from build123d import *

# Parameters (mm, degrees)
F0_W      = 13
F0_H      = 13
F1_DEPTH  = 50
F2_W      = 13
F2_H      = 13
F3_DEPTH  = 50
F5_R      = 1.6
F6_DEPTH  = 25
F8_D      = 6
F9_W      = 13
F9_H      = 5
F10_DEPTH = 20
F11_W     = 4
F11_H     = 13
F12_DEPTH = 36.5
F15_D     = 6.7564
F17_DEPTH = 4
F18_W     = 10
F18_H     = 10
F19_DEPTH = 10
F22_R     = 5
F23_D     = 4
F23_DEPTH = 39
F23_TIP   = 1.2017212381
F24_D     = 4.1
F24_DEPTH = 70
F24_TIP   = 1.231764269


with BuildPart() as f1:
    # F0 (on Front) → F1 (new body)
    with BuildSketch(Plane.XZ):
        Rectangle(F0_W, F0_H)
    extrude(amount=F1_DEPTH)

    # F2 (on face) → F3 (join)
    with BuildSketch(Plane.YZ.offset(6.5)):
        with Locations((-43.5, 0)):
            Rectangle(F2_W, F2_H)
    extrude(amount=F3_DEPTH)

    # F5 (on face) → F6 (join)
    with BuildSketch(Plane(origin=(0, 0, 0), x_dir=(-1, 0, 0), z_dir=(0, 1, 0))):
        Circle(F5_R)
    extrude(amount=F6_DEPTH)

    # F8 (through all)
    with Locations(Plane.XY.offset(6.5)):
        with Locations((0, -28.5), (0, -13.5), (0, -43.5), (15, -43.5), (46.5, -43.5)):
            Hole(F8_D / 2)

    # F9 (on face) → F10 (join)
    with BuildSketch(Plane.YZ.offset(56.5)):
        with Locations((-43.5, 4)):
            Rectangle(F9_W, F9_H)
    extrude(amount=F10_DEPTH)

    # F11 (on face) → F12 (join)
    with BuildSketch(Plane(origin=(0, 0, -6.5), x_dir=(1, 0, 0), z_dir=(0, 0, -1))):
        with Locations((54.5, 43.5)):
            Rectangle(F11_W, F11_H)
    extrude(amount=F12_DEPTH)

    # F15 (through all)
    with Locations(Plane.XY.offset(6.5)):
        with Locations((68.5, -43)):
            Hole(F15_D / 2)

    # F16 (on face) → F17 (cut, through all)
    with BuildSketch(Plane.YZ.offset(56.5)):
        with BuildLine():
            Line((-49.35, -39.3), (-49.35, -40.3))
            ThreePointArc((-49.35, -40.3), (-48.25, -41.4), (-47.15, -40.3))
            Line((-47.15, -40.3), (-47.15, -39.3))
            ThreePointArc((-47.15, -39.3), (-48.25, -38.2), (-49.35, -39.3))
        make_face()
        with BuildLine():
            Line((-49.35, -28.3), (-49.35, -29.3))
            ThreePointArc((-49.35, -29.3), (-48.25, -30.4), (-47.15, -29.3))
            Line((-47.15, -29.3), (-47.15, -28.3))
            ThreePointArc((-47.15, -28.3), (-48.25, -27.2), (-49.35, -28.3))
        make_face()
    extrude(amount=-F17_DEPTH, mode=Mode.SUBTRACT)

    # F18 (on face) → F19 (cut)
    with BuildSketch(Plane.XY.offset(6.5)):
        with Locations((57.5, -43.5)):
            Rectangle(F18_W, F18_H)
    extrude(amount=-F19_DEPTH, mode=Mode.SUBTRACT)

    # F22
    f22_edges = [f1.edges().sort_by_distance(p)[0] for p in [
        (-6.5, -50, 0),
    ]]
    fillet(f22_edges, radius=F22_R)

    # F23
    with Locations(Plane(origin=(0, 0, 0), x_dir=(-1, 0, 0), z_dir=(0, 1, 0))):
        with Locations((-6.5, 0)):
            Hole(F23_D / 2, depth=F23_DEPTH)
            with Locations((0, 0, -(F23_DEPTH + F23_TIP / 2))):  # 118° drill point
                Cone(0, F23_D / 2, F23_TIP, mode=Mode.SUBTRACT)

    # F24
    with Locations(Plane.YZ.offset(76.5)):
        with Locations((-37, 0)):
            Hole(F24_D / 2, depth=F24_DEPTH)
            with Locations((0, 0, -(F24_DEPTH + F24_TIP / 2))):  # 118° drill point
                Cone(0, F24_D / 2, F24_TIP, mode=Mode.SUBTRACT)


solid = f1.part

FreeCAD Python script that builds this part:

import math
import FreeCAD as App
import Part
import Sketcher
Q = App.Units.Quantity


def edges_at(feature, points):
    """Names of the edges that pass closest to the given points."""
    edges = feature.Shape.Edges
    near = lambda p: min(range(len(edges)), key=lambda i: edges[i].distToShape(Part.Vertex(*p))[0])
    return sorted({f"Edge{near(p) + 1}" for p in points})


def add_polygon(sketch, points):
    """Adds a closed chain of lines whose ends are joined by coincident constraints."""
    first, n = sketch.GeometryCount, len(points)
    for a, b in zip(points, points[1:] + points[:1]):
        sketch.addGeometry(Part.LineSegment(App.Vector(*a, 0), App.Vector(*b, 0)), False)
    for i in range(n):
        sketch.addConstraint(Sketcher.Constraint("Coincident", first + i, 2, first + (i + 1) % n, 1))

doc = App.newDocument("Part")
body = doc.addObject("PartDesign::Body", "Body")

# Sketch on XZ plane
sketch1 = body.newObject("Sketcher::SketchObject", "Sketch")
sketch1.AttachmentSupport = (doc.getObject("XZ_Plane"), [""])
sketch1.MapMode = "FlatFace"
add_polygon(sketch1, [(-6, 6), (-6, -6), (6, -6), (6, 6)])  # lines 0-3
sketch1.addConstraint(Sketcher.Constraint("Vertical", 0))
sketch1.addConstraint(Sketcher.Constraint("Horizontal", 1))
sketch1.addConstraint(Sketcher.Constraint("Vertical", 2))
sketch1.addConstraint(Sketcher.Constraint("Horizontal", 3))
sketch1.addConstraint(Sketcher.Constraint("Symmetric", 0, 2, 2, 2, -1, 1))
sketch1.addConstraint(Sketcher.Constraint("Equal", 3, 0))
sketch1.addConstraint(Sketcher.Constraint("DistanceX", 1, 1, 1, 2, Q("13 mm")))
pad1 = body.newObject("PartDesign::Pad", "Pad")
pad1.Profile = sketch1
pad1.Length = 50

# Sketch on YZ plane
sketch2 = body.newObject("Sketcher::SketchObject", "Sketch001")
sketch2.AttachmentSupport = (doc.getObject("YZ_Plane"), [""])
sketch2.MapMode = "FlatFace"
sketch2.AttachmentOffset = App.Placement(App.Vector(0, 0, 6.5), App.Rotation())
add_polygon(sketch2, [(-50, 6), (-50, -6), (-37, -6), (-37, 6)])  # lines 0-3
sketch2.addConstraint(Sketcher.Constraint("Vertical", 0))
sketch2.addConstraint(Sketcher.Constraint("Horizontal", 1))
sketch2.addConstraint(Sketcher.Constraint("Vertical", 2))
sketch2.addConstraint(Sketcher.Constraint("Horizontal", 3))
sketch2.addConstraint(Sketcher.Constraint("Equal", 3, 0))
sketch2.addConstraint(Sketcher.Constraint("DistanceX", 1, 1, 1, 2, Q("13 mm")))
sketch2.addConstraint(Sketcher.Constraint("DistanceX", 0, 2, -1, 1, Q("50 mm")))
sketch2.addConstraint(Sketcher.Constraint("DistanceY", 0, 2, -1, 1, Q("6.5 mm")))
pad2 = body.newObject("PartDesign::Pad", "Pad001")
pad2.Profile = sketch2
pad2.Length = 50

# Sketch on XZ plane
sketch3 = body.newObject("Sketcher::SketchObject", "Sketch002")
sketch3.AttachmentSupport = (doc.getObject("XZ_Plane"), [""])
sketch3.MapMode = "FlatFace"
sketch3.addGeometry(Part.Circle(App.Vector(0, 0, 0), App.Vector(0, 0, 1), 1.6), False)
sketch3.addConstraint(Sketcher.Constraint("Coincident", 0, 3, -1, 1))
sketch3.addConstraint(Sketcher.Constraint("Diameter", 0, Q("3.2 mm")))
pad3 = body.newObject("PartDesign::Pad", "Pad002")
pad3.Profile = sketch3
pad3.Length = 25
pad3.Reversed = True

# Sketch on XY plane
sketch4 = body.newObject("Sketcher::SketchObject", "Sketch003")
sketch4.AttachmentSupport = (doc.getObject("XY_Plane"), [""])
sketch4.MapMode = "FlatFace"
sketch4.AttachmentOffset = App.Placement(App.Vector(0, 0, 6.5), App.Rotation())
sketch4.addGeometry(Part.Circle(App.Vector(0, -28.5, 0), App.Vector(0, 0, 1), 3), False)
sketch4.addGeometry(Part.Circle(App.Vector(0, -13.5, 0), App.Vector(0, 0, 1), 3), False)
sketch4.addGeometry(Part.Circle(App.Vector(0, -43.5, 0), App.Vector(0, 0, 1), 3), False)
sketch4.addGeometry(Part.Circle(App.Vector(15, -43.5, 0), App.Vector(0, 0, 1), 3), False)
sketch4.addGeometry(Part.Circle(App.Vector(46.5, -43.5, 0), App.Vector(0, 0, 1), 3), False)
sketch4.addConstraint(Sketcher.Constraint("Equal", 0, 1))
sketch4.addConstraint(Sketcher.Constraint("Equal", 1, 2))
sketch4.addConstraint(Sketcher.Constraint("Equal", 2, 3))
sketch4.addConstraint(Sketcher.Constraint("Equal", 3, 4))
sketch4.addConstraint(Sketcher.Constraint("PointOnObject", 0, 3, -2))
sketch4.addConstraint(Sketcher.Constraint("PointOnObject", 1, 3, -2))
sketch4.addConstraint(Sketcher.Constraint("PointOnObject", 2, 3, -2))
sketch4.addConstraint(Sketcher.Constraint("Horizontal", 2, 3, 3, 3))
sketch4.addConstraint(Sketcher.Constraint("Horizontal", 3, 3, 4, 3))
sketch4.addConstraint(Sketcher.Constraint("Diameter", 0, Q("6 mm")))
sketch4.addConstraint(Sketcher.Constraint("DistanceX", -1, 1, 3, 3, Q("15 mm")))
sketch4.addConstraint(Sketcher.Constraint("DistanceY", 0, 3, 1, 3, Q("15 mm")))
sketch4.addConstraint(Sketcher.Constraint("DistanceY", 2, 3, 0, 3, Q("15 mm")))
sketch4.addConstraint(Sketcher.Constraint("DistanceY", 0, 3, -1, 1, Q("28.5 mm")))
sketch4.addConstraint(Sketcher.Constraint("DistanceX", -1, 1, 4, 3, Q("46.5 mm")))
doc.recompute()
hole = body.newObject("PartDesign::Hole", "Hole")
hole.Profile = sketch4
hole.ThreadType = "None"
hole.Diameter = 6
hole.DepthType = "ThroughAll"

# Sketch on YZ plane
sketch5 = body.newObject("Sketcher::SketchObject", "Sketch004")
sketch5.AttachmentSupport = (doc.getObject("YZ_Plane"), [""])
sketch5.MapMode = "FlatFace"
sketch5.AttachmentOffset = App.Placement(App.Vector(0, 0, 56.5), App.Rotation())
add_polygon(sketch5, [(-50, 6), (-50, 2), (-37, 2), (-37, 6)])  # lines 0-3
sketch5.addConstraint(Sketcher.Constraint("Vertical", 0))
sketch5.addConstraint(Sketcher.Constraint("Horizontal", 1))
sketch5.addConstraint(Sketcher.Constraint("Vertical", 2))
sketch5.addConstraint(Sketcher.Constraint("Horizontal", 3))
sketch5.addConstraint(Sketcher.Constraint("DistanceX", 1, 1, 1, 2, Q("13 mm")))
sketch5.addConstraint(Sketcher.Constraint("DistanceY", 0, 2, 0, 1, Q("5 mm")))
sketch5.addConstraint(Sketcher.Constraint("DistanceX", 0, 2, -1, 1, Q("50 mm")))
sketch5.addConstraint(Sketcher.Constraint("DistanceY", -1, 1, 0, 2, Q("1.5 mm")))
pad4 = body.newObject("PartDesign::Pad", "Pad003")
pad4.Profile = sketch5
pad4.Length = 20

# Sketch on XY plane
sketch6 = body.newObject("Sketcher::SketchObject", "Sketch005")
sketch6.AttachmentSupport = (doc.getObject("XY_Plane"), [""])
sketch6.MapMode = "FlatFace"
sketch6.AttachmentOffset = App.Placement(App.Vector(0, 0, -6.5), App.Rotation())
add_polygon(sketch6, [(52.5, -50), (52.5, -37), (56.5, -37), (56.5, -50)])  # lines 0-3
sketch6.addConstraint(Sketcher.Constraint("Vertical", 0))
sketch6.addConstraint(Sketcher.Constraint("Horizontal", 1))
sketch6.addConstraint(Sketcher.Constraint("Vertical", 2))
sketch6.addConstraint(Sketcher.Constraint("Horizontal", 3))
sketch6.addConstraint(Sketcher.Constraint("DistanceX", 1, 1, 1, 2, Q("4 mm")))
sketch6.addConstraint(Sketcher.Constraint("DistanceY", 0, 1, 0, 2, Q("13 mm")))
sketch6.addConstraint(Sketcher.Constraint("DistanceY", 0, 2, -1, 1, Q("37 mm")))
sketch6.addConstraint(Sketcher.Constraint("DistanceX", -1, 1, 0, 2, Q("52.5 mm")))
pad5 = body.newObject("PartDesign::Pad", "Pad004")
pad5.Profile = sketch6
pad5.Length = 36.5
pad5.Reversed = True

# Sketch on XY plane
sketch7 = body.newObject("Sketcher::SketchObject", "Sketch006")
sketch7.AttachmentSupport = (doc.getObject("XY_Plane"), [""])
sketch7.MapMode = "FlatFace"
sketch7.AttachmentOffset = App.Placement(App.Vector(0, 0, 6.5), App.Rotation())
sketch7.addGeometry(Part.Circle(App.Vector(68.5, -43, 0), App.Vector(0, 0, 1), 3.4), False)
sketch7.addConstraint(Sketcher.Constraint("DistanceY", 0, 3, -1, 1, Q("43 mm")))
sketch7.addConstraint(Sketcher.Constraint("Diameter", 0, Q("6.7564 mm")))
sketch7.addConstraint(Sketcher.Constraint("DistanceX", -1, 1, 0, 3, Q("68.5 mm")))
doc.recompute()
hole2 = body.newObject("PartDesign::Hole", "Hole001")
hole2.Profile = sketch7
hole2.ThreadType = "None"
hole2.Diameter = 6.7564
hole2.DepthType = "ThroughAll"

# Sketch on YZ plane
sketch8 = body.newObject("Sketcher::SketchObject", "Sketch007")
sketch8.AttachmentSupport = (doc.getObject("YZ_Plane"), [""])
sketch8.MapMode = "FlatFace"
sketch8.AttachmentOffset = App.Placement(App.Vector(0, 0, 56.5), App.Rotation())
sketch8.addGeometry(Part.LineSegment(App.Vector(-49.4, -39.3, 0), App.Vector(-49.4, -40.3, 0)), False)
sketch8.addGeometry(Part.ArcOfCircle(Part.Circle(App.Vector(-48.2, -40.3, 0), App.Vector(0, 0, 1), 1.1), math.radians(180), math.radians(360)), False)
sketch8.addGeometry(Part.LineSegment(App.Vector(-47.1, -40.3, 0), App.Vector(-47.1, -39.3, 0)), False)
sketch8.addGeometry(Part.ArcOfCircle(Part.Circle(App.Vector(-48.2, -39.3, 0), App.Vector(0, 0, 1), 1.1), math.radians(0), math.radians(180)), False)
sketch8.addGeometry(Part.LineSegment(App.Vector(-49.4, -28.3, 0), App.Vector(-49.4, -29.3, 0)), False)
sketch8.addGeometry(Part.ArcOfCircle(Part.Circle(App.Vector(-48.2, -29.3, 0), App.Vector(0, 0, 1), 1.1), math.radians(180), math.radians(360)), False)
sketch8.addGeometry(Part.LineSegment(App.Vector(-47.1, -29.3, 0), App.Vector(-47.1, -28.3, 0)), False)
sketch8.addGeometry(Part.ArcOfCircle(Part.Circle(App.Vector(-48.2, -28.3, 0), App.Vector(0, 0, 1), 1.1), math.radians(0), math.radians(180)), False)
sketch8.addConstraint(Sketcher.Constraint("Tangent", 0, 2, 1, 1))
sketch8.addConstraint(Sketcher.Constraint("Tangent", 1, 2, 2, 1))
sketch8.addConstraint(Sketcher.Constraint("Tangent", 2, 2, 3, 1))
sketch8.addConstraint(Sketcher.Constraint("Tangent", 3, 2, 0, 1))
sketch8.addConstraint(Sketcher.Constraint("Tangent", 4, 2, 5, 1))
sketch8.addConstraint(Sketcher.Constraint("Tangent", 5, 2, 6, 1))
sketch8.addConstraint(Sketcher.Constraint("Tangent", 6, 2, 7, 1))
sketch8.addConstraint(Sketcher.Constraint("Tangent", 7, 2, 4, 1))
sketch8.addConstraint(Sketcher.Constraint("Vertical", 0))
sketch8.addConstraint(Sketcher.Constraint("Vertical", 2))
sketch8.addConstraint(Sketcher.Constraint("Vertical", 4))
sketch8.addConstraint(Sketcher.Constraint("Vertical", 6))
sketch8.addConstraint(Sketcher.Constraint("Equal", 3, 5))
sketch8.addConstraint(Sketcher.Constraint("Vertical", 3, 3, 5, 3))
sketch8.addConstraint(Sketcher.Constraint("Equal", 2, 4))
sketch8.addConstraint(Sketcher.Constraint("Radius", 1, Q("1.1 mm")))
sketch8.addConstraint(Sketcher.Constraint("DistanceY", 0, 2, 0, 1, Q("1 mm")))
sketch8.addConstraint(Sketcher.Constraint("DistanceY", 3, 3, 5, 3, Q("10 mm")))
sketch8.addConstraint(Sketcher.Constraint("DistanceY", 1, 3, -1, 1, Q("40.3 mm")))
sketch8.addConstraint(Sketcher.Constraint("DistanceX", 1, 3, -1, 1, Q("48.25 mm")))
pocket1 = body.newObject("PartDesign::Pocket", "Pocket")
pocket1.Profile = sketch8
pocket1.Type = "ThroughAll"

# Sketch on XY plane
sketch9 = body.newObject("Sketcher::SketchObject", "Sketch008")
sketch9.AttachmentSupport = (doc.getObject("XY_Plane"), [""])
sketch9.MapMode = "FlatFace"
sketch9.AttachmentOffset = App.Placement(App.Vector(0, 0, 6.5), App.Rotation())
add_polygon(sketch9, [(52, -38), (52, -48), (62, -48), (62, -38)])  # lines 0-3
sketch9.addConstraint(Sketcher.Constraint("Vertical", 0))
sketch9.addConstraint(Sketcher.Constraint("Horizontal", 1))
sketch9.addConstraint(Sketcher.Constraint("Vertical", 2))
sketch9.addConstraint(Sketcher.Constraint("Horizontal", 3))
sketch9.addConstraint(Sketcher.Constraint("Equal", 3, 0))
sketch9.addConstraint(Sketcher.Constraint("DistanceX", 1, 1, 1, 2, Q("10 mm")))
sketch9.addConstraint(Sketcher.Constraint("DistanceX", -1, 1, 0, 2, Q("52.5 mm")))
sketch9.addConstraint(Sketcher.Constraint("DistanceY", 0, 2, -1, 1, Q("48.5 mm")))
pocket2 = body.newObject("PartDesign::Pocket", "Pocket001")
pocket2.Profile = sketch9
pocket2.Length = 10
doc.recompute()

fillet = body.newObject("PartDesign::Fillet", "Fillet")
fillet.Base = (pocket2, edges_at(pocket2, [(-6.5, -50, 0)]))
fillet.Radius = 5

# Sketch on XZ plane
sketch10 = body.newObject("Sketcher::SketchObject", "Sketch009")
sketch10.AttachmentSupport = (doc.getObject("XZ_Plane"), [""])
sketch10.MapMode = "FlatFace"
sketch10.addGeometry(Part.Circle(App.Vector(6.5, 0, 0), App.Vector(0, 0, 1), 2), False)
sketch10.addConstraint(Sketcher.Constraint("PointOnObject", 0, 3, -1))
sketch10.addConstraint(Sketcher.Constraint("Diameter", 0, Q("4 mm")))
sketch10.addConstraint(Sketcher.Constraint("DistanceX", -1, 1, 0, 3, Q("6.5 mm")))
doc.recompute()
hole3 = body.newObject("PartDesign::Hole", "Hole002")
hole3.Profile = sketch10
hole3.ThreadType = "None"
hole3.Diameter = 4
hole3.DepthType = "Dimension"
hole3.Depth = 39
hole3.DrillPoint = "Angled"
hole3.DrillPointAngle = 118
hole3.Reversed = True

# Sketch on YZ plane
sketch11 = body.newObject("Sketcher::SketchObject", "Sketch010")
sketch11.AttachmentSupport = (doc.getObject("YZ_Plane"), [""])
sketch11.MapMode = "FlatFace"
sketch11.AttachmentOffset = App.Placement(App.Vector(0, 0, 76.5), App.Rotation())
sketch11.addGeometry(Part.Circle(App.Vector(-37, 0, 0), App.Vector(0, 0, 1), 2), False)
sketch11.addConstraint(Sketcher.Constraint("PointOnObject", 0, 3, -1))
sketch11.addConstraint(Sketcher.Constraint("Diameter", 0, Q("4.1 mm")))
sketch11.addConstraint(Sketcher.Constraint("DistanceX", 0, 3, -1, 1, Q("37 mm")))
doc.recompute()
hole4 = body.newObject("PartDesign::Hole", "Hole003")
hole4.Profile = sketch11
hole4.ThreadType = "None"
hole4.Diameter = 4.1
hole4.DepthType = "Dimension"
hole4.Depth = 70
hole4.DrillPoint = "Angled"
hole4.DrillPointAngle = 118

doc.recompute()
